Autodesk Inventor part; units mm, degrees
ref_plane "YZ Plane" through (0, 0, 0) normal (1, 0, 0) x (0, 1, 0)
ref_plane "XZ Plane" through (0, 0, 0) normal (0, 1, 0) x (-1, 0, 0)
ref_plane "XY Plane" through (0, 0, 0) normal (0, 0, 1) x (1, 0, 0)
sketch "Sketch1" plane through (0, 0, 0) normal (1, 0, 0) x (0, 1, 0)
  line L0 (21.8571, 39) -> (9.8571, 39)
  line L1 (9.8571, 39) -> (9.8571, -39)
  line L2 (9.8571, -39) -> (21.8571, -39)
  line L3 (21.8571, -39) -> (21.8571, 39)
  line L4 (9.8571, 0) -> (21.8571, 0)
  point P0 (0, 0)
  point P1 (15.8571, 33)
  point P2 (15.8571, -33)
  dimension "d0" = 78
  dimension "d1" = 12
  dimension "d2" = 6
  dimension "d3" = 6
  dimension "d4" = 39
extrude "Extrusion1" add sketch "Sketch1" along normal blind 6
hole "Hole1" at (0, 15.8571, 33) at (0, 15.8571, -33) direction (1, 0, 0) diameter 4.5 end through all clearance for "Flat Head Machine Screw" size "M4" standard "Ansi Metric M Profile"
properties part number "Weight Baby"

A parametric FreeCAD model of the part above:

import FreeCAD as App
import Part
import Sketcher

V = App.Vector


def add_polygon(sketch, points):
    """Adds a closed chain of lines whose ends are joined by coincident constraints."""
    first, n = sketch.GeometryCount, len(points)
    for a, b in zip(points, points[1:] + points[:1]):
        sketch.addGeometry(Part.LineSegment(App.Vector(*a, 0), App.Vector(*b, 0)), False)
    for i in range(n):
        sketch.addConstraint(Sketcher.Constraint("Coincident", first + i, 2, first + (i + 1) % n, 1))

doc = App.newDocument("Part")
params = doc.addObject("Spreadsheet::Sheet", "Params")
for row, (alias, value) in enumerate([
    ("sketch1_width", "12 mm"),
    ("sketch1_height", "78 mm"),
    ("pad1_length", "6 mm"),
    ("sketch2_diameter", "4.5 mm"),
    ("hole_diameter", "4.5 mm"),
], start=1):
    params.set(f"A{row}", alias)
    params.set(f"B{row}", "=" + value)
    params.setAlias(f"B{row}", alias)

body = doc.addObject("PartDesign::Body", "Body")

sketch1 = doc.addObject("Sketcher::SketchObject", "Sketch")
body.addObject(sketch1)
sketch1.AttachmentSupport = (doc.YZ_Plane, [""])
sketch1.MapMode = "FlatFace"
add_polygon(sketch1, [(21.8571, 39), (9.8571, 39), (9.8571, -39), (21.8571, -39)])
sketch1.addConstraint([
    Sketcher.Constraint("Horizontal", 0),
    Sketcher.Constraint("Vertical", 1),
    Sketcher.Constraint("Horizontal", 2),
    Sketcher.Constraint("Vertical", 3),
    Sketcher.Constraint("DistanceX", 0, 2, 0, 1, 12.0),
    Sketcher.Constraint("DistanceY", 1, 2, 1, 1, 78.0),
    Sketcher.Constraint("DistanceY", -1, 1, 0, 2, 39.0),
    Sketcher.Constraint("DistanceX", -1, 1, 0, 2, 9.857),
])
sketch1.setExpression("Constraints[8]", "Params.sketch1_width")
sketch1.setExpression("Constraints[9]", "Params.sketch1_height")
pad1 = doc.addObject("PartDesign::Pad", "Pad")
body.addObject(pad1)
pad1.Profile = sketch1
pad1.setExpression("Length", "Params.pad1_length")

sketch2 = doc.addObject("Sketcher::SketchObject", "Sketch001")
body.addObject(sketch2)
sketch2.AttachmentSupport = (doc.YZ_Plane, [""])
sketch2.MapMode = "FlatFace"
sketch2.addGeometry([
    Part.Circle(V(15.8571, 33, 0), V(0, 0, 1), 2.25),
    Part.Circle(V(15.8571, -33, 0), V(0, 0, 1), 2.25),
], False)
sketch2.addConstraint([
    Sketcher.Constraint("Equal", 0, 1),
    Sketcher.Constraint("Symmetric", 0, 3, 1, 3, -1),
    Sketcher.Constraint("Diameter", 0, 4.5),
    Sketcher.Constraint("DistanceY", -1, 1, 0, 3, 33.0),
    Sketcher.Constraint("DistanceX", -1, 1, 0, 3, 15.857),
])
sketch2.setExpression("Constraints[2]", "Params.sketch2_diameter")
doc.recompute()
hole = doc.addObject("PartDesign::Hole", "Hole")
body.addObject(hole)
hole.Profile = sketch2
hole.ThreadType = "None"
hole.setExpression("Diameter", "Params.hole_diameter")
hole.DepthType = "ThroughAll"
hole.Reversed = True

doc.recompute()
